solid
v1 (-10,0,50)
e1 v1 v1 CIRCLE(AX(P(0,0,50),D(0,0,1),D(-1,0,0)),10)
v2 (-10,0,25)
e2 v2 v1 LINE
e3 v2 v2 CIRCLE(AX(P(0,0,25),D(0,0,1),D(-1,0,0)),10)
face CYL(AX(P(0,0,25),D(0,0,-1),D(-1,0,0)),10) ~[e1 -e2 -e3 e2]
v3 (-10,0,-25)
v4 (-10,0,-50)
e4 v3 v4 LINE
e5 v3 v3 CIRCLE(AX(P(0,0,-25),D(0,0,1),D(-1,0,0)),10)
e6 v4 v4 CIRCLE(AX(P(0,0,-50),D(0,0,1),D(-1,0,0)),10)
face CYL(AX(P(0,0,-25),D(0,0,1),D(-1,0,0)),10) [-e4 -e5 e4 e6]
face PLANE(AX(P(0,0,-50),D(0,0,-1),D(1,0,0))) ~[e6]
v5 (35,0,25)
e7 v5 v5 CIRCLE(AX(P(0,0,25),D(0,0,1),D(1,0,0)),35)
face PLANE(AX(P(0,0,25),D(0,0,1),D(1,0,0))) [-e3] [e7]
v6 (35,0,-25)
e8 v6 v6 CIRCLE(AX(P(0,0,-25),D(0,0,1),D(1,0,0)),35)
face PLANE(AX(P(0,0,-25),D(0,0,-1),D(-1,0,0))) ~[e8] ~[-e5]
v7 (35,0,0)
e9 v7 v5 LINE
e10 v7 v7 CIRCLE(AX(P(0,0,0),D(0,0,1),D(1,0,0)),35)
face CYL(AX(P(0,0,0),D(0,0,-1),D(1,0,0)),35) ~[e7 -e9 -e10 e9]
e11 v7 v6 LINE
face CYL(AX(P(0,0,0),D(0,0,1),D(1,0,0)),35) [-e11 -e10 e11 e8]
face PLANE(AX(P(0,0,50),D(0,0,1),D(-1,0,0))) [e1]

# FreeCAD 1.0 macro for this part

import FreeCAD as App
import Part
import Sketcher

doc = App.newDocument("Part")
params = doc.addObject("Spreadsheet::Sheet", "Params")
for row, (alias, value) in enumerate([
    ("sketch1_diameter", "70 mm"),
    ("pad1_length", "25 mm"),
    ("sketch2_diameter", "20 mm"),
    ("pad2_length", "25 mm"),
], start=1):
    params.set(f"A{row}", alias)
    params.set(f"B{row}", "=" + value)
    params.setAlias(f"B{row}", alias)

body = doc.addObject("PartDesign::Body", "Body")

sketch1 = doc.addObject("Sketcher::SketchObject", "Sketch")
body.addObject(sketch1)
sketch1.AttachmentSupport = (doc.XY_Plane, [""])
sketch1.MapMode = "FlatFace"
sketch1.addGeometry(Part.Circle(App.Vector(0, 0, 0), App.Vector(0, 0, 1), 35), False)
sketch1.addConstraint([
    Sketcher.Constraint("Coincident", 0, 3, -1, 1),
    Sketcher.Constraint("Diameter", 0, 70.0),
])
sketch1.setExpression("Constraints[1]", "Params.sketch1_diameter")
pad1 = doc.addObject("PartDesign::Pad", "Pad")
body.addObject(pad1)
pad1.Profile = sketch1
pad1.setExpression("Length", "Params.pad1_length")

sketch2 = doc.addObject("Sketcher::SketchObject", "Sketch001")
body.addObject(sketch2)
sketch2.AttachmentSupport = (doc.XY_Plane, [""])
sketch2.MapMode = "FlatFace"
sketch2.AttachmentOffset = App.Placement(App.Vector(0, 0, 25), App.Rotation())
sketch2.addGeometry(Part.Circle(App.Vector(0, 0, 0), App.Vector(0, 0, 1), 10), False)
sketch2.addConstraint([
    Sketcher.Constraint("Coincident", 0, 3, -1, 1),
    Sketcher.Constraint("Diameter", 0, 20.0),
])
sketch2.setExpression("Constraints[1]", "Params.sketch2_diameter")
pad2 = doc.addObject("PartDesign::Pad", "Pad001")
body.addObject(pad2)
pad2.Profile = sketch2
pad2.setExpression("Length", "Params.pad2_length")
doc.recompute()

mirrored = doc.addObject("PartDesign::Mirrored", "Mirrored")
body.addObject(mirrored)
mirrored.TransformMode = "Transform body"
mirrored.MirrorPlane = (doc.XY_Plane, [""])
body.Tip = mirrored

doc.recompute()
